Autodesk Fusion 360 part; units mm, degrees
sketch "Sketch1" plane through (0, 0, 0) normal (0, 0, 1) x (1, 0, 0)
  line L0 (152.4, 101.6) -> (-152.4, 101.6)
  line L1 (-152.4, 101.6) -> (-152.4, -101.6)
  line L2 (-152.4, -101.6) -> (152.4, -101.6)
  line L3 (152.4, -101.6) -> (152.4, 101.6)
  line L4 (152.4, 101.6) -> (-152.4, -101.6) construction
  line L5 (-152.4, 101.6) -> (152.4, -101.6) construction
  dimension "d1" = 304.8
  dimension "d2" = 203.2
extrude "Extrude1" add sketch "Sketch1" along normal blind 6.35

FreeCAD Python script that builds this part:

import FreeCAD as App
import Part
import Sketcher
from FreeCAD import Vector
Q = App.Units.Quantity


def add_polygon(sketch, points):
    """Adds a closed chain of lines whose ends are joined by coincident constraints."""
    first, n = sketch.GeometryCount, len(points)
    for a, b in zip(points, points[1:] + points[:1]):
        sketch.addGeometry(Part.LineSegment(App.Vector(*a, 0), App.Vector(*b, 0)), False)
    for i in range(n):
        sketch.addConstraint(Sketcher.Constraint("Coincident", first + i, 2, first + (i + 1) % n, 1))

doc = App.newDocument("Part")
params = doc.addObject("Spreadsheet::Sheet", "Params")
for row, (alias, value) in enumerate([
    ("sketch1_width", "12 in"),
    ("sketch1_height", "8 in"),
    ("pad1_length", "0.25 in"),
], start=1):
    params.set(f"A{row}", alias)
    params.set(f"B{row}", "=" + value)
    params.setAlias(f"B{row}", alias)

body = doc.addObject("PartDesign::Body", "Body")

# Sketch on XY plane
sketch1 = body.newObject("Sketcher::SketchObject", "Sketch")
sketch1.AttachmentSupport = (doc.getObject("XY_Plane"), [""])
sketch1.MapMode = "FlatFace"
add_polygon(sketch1, [(152, -102), (152, 102), (-152, 102), (-152, -102)])  # lines 0-3
sketch1.addConstraint([
    Sketcher.Constraint("Vertical", 0),
    Sketcher.Constraint("Horizontal", 1),
    Sketcher.Constraint("Vertical", 2),
    Sketcher.Constraint("Horizontal", 3),
    Sketcher.Constraint("Symmetric", 0, 2, 2, 2, -1, 1),
    Sketcher.Constraint("DistanceX", 1, 2, 1, 1, Q("12 in")),
    Sketcher.Constraint("DistanceY", 0, 1, 0, 2, Q("8 in")),
])
sketch1.setExpression("Constraints[9]", "Params.sketch1_width")
sketch1.setExpression("Constraints[10]", "Params.sketch1_height")
pad1 = body.newObject("PartDesign::Pad", "Pad")
pad1.Profile = sketch1
pad1.setExpression("Length", "Params.pad1_length")

doc.recompute()
